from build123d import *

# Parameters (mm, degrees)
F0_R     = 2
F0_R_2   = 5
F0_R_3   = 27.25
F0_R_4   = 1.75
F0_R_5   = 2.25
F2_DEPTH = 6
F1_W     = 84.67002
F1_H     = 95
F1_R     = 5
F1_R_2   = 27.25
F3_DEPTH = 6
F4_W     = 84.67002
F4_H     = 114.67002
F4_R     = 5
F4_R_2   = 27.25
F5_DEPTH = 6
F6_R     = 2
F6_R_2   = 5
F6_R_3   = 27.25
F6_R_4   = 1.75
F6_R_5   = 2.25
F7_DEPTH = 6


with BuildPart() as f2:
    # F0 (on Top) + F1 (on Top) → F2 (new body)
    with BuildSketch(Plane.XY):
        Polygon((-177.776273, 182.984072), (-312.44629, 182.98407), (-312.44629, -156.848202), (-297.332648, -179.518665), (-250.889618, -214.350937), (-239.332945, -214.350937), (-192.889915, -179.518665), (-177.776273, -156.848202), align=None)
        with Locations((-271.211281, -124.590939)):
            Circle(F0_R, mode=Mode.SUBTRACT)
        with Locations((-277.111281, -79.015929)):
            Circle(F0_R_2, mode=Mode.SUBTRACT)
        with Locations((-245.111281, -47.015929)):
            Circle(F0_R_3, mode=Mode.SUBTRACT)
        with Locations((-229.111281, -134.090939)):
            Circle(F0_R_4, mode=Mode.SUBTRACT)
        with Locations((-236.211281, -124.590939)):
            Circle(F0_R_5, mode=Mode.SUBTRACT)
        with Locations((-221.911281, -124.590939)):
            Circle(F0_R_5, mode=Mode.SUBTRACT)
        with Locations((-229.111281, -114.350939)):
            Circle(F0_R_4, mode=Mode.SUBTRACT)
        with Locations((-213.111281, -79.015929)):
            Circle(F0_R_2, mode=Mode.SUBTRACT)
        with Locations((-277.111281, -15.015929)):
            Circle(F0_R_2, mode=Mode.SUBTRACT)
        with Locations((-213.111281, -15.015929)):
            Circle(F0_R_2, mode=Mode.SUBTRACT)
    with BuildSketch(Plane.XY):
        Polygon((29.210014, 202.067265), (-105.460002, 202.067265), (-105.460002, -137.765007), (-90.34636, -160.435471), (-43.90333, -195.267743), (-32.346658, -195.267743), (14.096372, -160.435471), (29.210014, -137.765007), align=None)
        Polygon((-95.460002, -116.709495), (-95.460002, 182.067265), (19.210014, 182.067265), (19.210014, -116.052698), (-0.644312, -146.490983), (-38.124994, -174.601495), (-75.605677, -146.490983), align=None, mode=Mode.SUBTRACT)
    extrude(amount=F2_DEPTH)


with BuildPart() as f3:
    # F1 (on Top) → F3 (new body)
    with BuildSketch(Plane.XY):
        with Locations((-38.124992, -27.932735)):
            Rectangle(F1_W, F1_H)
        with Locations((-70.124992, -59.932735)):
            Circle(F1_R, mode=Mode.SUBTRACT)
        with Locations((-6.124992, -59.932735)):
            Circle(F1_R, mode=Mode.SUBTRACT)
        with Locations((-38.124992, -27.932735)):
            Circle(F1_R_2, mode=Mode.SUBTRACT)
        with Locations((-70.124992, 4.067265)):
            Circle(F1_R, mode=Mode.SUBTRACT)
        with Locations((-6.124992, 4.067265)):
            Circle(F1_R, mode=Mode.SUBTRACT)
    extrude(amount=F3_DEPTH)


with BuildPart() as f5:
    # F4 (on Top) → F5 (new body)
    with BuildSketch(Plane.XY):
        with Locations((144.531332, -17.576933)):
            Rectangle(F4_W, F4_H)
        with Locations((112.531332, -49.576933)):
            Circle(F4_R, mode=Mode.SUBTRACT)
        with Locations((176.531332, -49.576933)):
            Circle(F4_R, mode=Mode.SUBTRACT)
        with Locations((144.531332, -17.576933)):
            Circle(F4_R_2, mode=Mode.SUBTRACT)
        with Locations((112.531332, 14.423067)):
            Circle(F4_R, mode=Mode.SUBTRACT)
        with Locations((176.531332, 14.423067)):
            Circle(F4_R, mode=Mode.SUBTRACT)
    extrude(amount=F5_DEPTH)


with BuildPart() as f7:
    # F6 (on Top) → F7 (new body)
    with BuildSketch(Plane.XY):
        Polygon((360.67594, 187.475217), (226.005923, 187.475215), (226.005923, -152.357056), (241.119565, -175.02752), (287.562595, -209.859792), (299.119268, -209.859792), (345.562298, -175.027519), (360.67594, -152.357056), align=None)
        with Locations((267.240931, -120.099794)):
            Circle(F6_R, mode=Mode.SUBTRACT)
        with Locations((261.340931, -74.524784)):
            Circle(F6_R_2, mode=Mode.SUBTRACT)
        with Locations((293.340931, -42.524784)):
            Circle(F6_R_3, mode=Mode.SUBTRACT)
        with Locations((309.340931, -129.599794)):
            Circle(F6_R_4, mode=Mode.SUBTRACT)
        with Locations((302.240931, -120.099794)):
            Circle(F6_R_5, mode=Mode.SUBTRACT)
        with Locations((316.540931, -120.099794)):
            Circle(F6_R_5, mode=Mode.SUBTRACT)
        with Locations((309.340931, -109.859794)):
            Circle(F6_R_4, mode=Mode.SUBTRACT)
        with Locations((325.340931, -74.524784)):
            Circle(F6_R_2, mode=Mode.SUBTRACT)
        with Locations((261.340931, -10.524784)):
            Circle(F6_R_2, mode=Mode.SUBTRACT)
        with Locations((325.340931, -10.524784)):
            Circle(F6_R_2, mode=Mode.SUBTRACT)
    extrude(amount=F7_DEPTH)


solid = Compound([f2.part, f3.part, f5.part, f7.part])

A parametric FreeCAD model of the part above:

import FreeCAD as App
import Part
import Sketcher


def add_polygon(sketch, points):
    """Adds a closed chain of lines whose ends are joined by coincident constraints."""
    first, n = sketch.GeometryCount, len(points)
    for a, b in zip(points, points[1:] + points[:1]):
        sketch.addGeometry(Part.LineSegment(App.Vector(*a, 0), App.Vector(*b, 0)), False)
    for i in range(n):
        sketch.addConstraint(Sketcher.Constraint("Coincident", first + i, 2, first + (i + 1) % n, 1))

doc = App.newDocument("Part")
params = doc.addObject("Spreadsheet::Sheet", "Params")
for row, (alias, value) in enumerate([
    ("sketch1_diameter", "4 mm"),
    ("sketch1_diameter2", "10 mm"),
    ("sketch1_diameter3", "4.5 mm"),
    ("sketch1_diameter4", "3.5 mm"),
    ("sketch1_diameter5", "54.5 mm"),
    ("pad1_length", "6 mm"),
    ("sketch2_diameter", "10 mm"),
    ("sketch2_diameter2", "54.5 mm"),
    ("sketch2_height", "95 mm"),
    ("pad2_length", "6 mm"),
    ("sketch3_diameter", "10 mm"),
    ("sketch3_diameter2", "54.5 mm"),
    ("pad3_length", "6 mm"),
    ("sketch4_diameter", "4 mm"),
    ("sketch4_diameter2", "10 mm"),
    ("sketch4_diameter3", "4.5 mm"),
    ("sketch4_diameter4", "3.5 mm"),
    ("sketch4_diameter5", "54.5 mm"),
    ("pad4_length", "6 mm"),
], start=1):
    params.set(f"A{row}", alias)
    params.set(f"B{row}", "=" + value)
    params.setAlias(f"B{row}", alias)

body = doc.addObject("PartDesign::Body", "Body")
body.AllowCompound = True

# Sketch on XY plane
sketch1 = body.newObject("Sketcher::SketchObject", "Sketch")
sketch1.AttachmentSupport = (doc.getObject("XY_Plane"), [""])
sketch1.MapMode = "FlatFace"
add_polygon(sketch1, [(-177.776273, 182.984072), (-312.44629, 182.98407), (-312.44629, -156.848202), (-297.332648, -179.518665), (-250.889618, -214.350937), (-239.332945, -214.350937), (-192.889915, -179.518665), (-177.776273, -156.848202)])  # lines 0-7
sketch1.addGeometry(Part.Circle(App.Vector(-271.211281, -124.590939, 0), App.Vector(0, 0, 1), 2), False)  # 8
sketch1.addGeometry(Part.Circle(App.Vector(-277.111281, -79.015929, 0), App.Vector(0, 0, 1), 5), False)  # 9
sketch1.addGeometry(Part.Circle(App.Vector(-236.211281, -124.590939, 0), App.Vector(0, 0, 1), 2.25), False)  # 10
sketch1.addGeometry(Part.Circle(App.Vector(-229.111281, -134.090939, 0), App.Vector(0, 0, 1), 1.75), False)  # 11
sketch1.addGeometry(Part.Circle(App.Vector(-229.111281, -114.350939, 0), App.Vector(0, 0, 1), 1.75), False)  # 12
sketch1.addGeometry(Part.Circle(App.Vector(-221.911281, -124.590939, 0), App.Vector(0, 0, 1), 2.25), False)  # 13
sketch1.addGeometry(Part.Circle(App.Vector(-213.111281, -79.015929, 0), App.Vector(0, 0, 1), 5), False)  # 14
sketch1.addGeometry(Part.Circle(App.Vector(-277.111281, -15.015929, 0), App.Vector(0, 0, 1), 5), False)  # 15
sketch1.addGeometry(Part.Circle(App.Vector(-245.111281, -47.015929, 0), App.Vector(0, 0, 1), 27.25), False)  # 16
sketch1.addGeometry(Part.Circle(App.Vector(-213.111281, -15.015929, 0), App.Vector(0, 0, 1), 5), False)  # 17
add_polygon(sketch1, [(29.210014, 202.067265), (-105.460002, 202.067265), (-105.460002, -137.765007), (-90.34636, -160.435471), (-43.90333, -195.267743), (-32.346658, -195.267743), (14.096372, -160.435471), (29.210014, -137.765007)])  # lines 18-25
add_polygon(sketch1, [(-75.605677, -146.490983), (-95.460002, -116.709495), (-95.460002, 182.067265), (19.210014, 182.067265), (19.210014, -116.052698), (-0.644312, -146.490983), (-38.124994, -174.601495)])  # lines 26-32
sketch1.addConstraint(Sketcher.Constraint("Horizontal", 0))
sketch1.addConstraint(Sketcher.Constraint("Vertical", 1))
sketch1.addConstraint(Sketcher.Constraint("Horizontal", 4))
sketch1.addConstraint(Sketcher.Constraint("Vertical", 7))
sketch1.addConstraint(Sketcher.Constraint("Horizontal", 18))
sketch1.addConstraint(Sketcher.Constraint("Vertical", 19))
sketch1.addConstraint(Sketcher.Constraint("Horizontal", 22))
sketch1.addConstraint(Sketcher.Constraint("Vertical", 25))
sketch1.addConstraint(Sketcher.Constraint("Vertical", 27))
sketch1.addConstraint(Sketcher.Constraint("Horizontal", 28))
sketch1.addConstraint(Sketcher.Constraint("Vertical", 29))
sketch1.addConstraint(Sketcher.Constraint("Equal", 11, 12))
sketch1.addConstraint(Sketcher.Constraint("Equal", 10, 13))
sketch1.addConstraint(Sketcher.Constraint("Equal", 9, 14))
sketch1.addConstraint(Sketcher.Constraint("Equal", 14, 15))
sketch1.addConstraint(Sketcher.Constraint("Equal", 15, 17))
sketch1.addConstraint(Sketcher.Constraint("Parallel", 2, 20))
sketch1.addConstraint(Sketcher.Constraint("Parallel", 3, 21))
sketch1.addConstraint(Sketcher.Constraint("Parallel", 5, 23))
sketch1.addConstraint(Sketcher.Constraint("Parallel", 6, 24))
sketch1.addConstraint(Sketcher.Constraint("Parallel", 20, 26))
sketch1.addConstraint(Sketcher.Constraint("Parallel", 23, 31))
sketch1.addConstraint(Sketcher.Constraint("Parallel", 21, 32))
sketch1.addConstraint(Sketcher.Constraint("Horizontal", 8, 3, 10, 3))
sketch1.addConstraint(Sketcher.Constraint("Horizontal", 10, 3, 13, 3))
sketch1.addConstraint(Sketcher.Constraint("Horizontal", 9, 3, 14, 3))
sketch1.addConstraint(Sketcher.Constraint("Horizontal", 15, 3, 17, 3))
sketch1.addConstraint(Sketcher.Constraint("Horizontal", 2, 2, 5, 2))
sketch1.addConstraint(Sketcher.Constraint("Horizontal", 1, 2, 6, 2))
sketch1.addConstraint(Sketcher.Constraint("Horizontal", 20, 2, 23, 2))
sketch1.addConstraint(Sketcher.Constraint("Horizontal", 19, 2, 24, 2))
sketch1.addConstraint(Sketcher.Constraint("Horizontal", 30, 2, 32, 2))
sketch1.addConstraint(Sketcher.Constraint("Vertical", 11, 3, 12, 3))
sketch1.addConstraint(Sketcher.Constraint("Vertical", 9, 3, 15, 3))
sketch1.addConstraint(Sketcher.Constraint("Vertical", 14, 3, 17, 3))
sketch1.addConstraint(Sketcher.Constraint("Equal", 0, 18))
sketch1.addConstraint(Sketcher.Constraint("Equal", 4, 22))
sketch1.addConstraint(Sketcher.Constraint("Equal", 7, 19))
sketch1.addConstraint(Sketcher.Constraint("Equal", 3, 5))
sketch1.addConstraint(Sketcher.Constraint("Equal", 2, 6))
sketch1.addConstraint(Sketcher.Constraint("Equal", 6, 20))
sketch1.addConstraint(Sketcher.Constraint("Diameter", 8, 4.0))
sketch1.addConstraint(Sketcher.Constraint("Diameter", 9, 10.0))
sketch1.addConstraint(Sketcher.Constraint("Diameter", 10, 4.5))
sketch1.addConstraint(Sketcher.Constraint("Diameter", 11, 3.5))
sketch1.addConstraint(Sketcher.Constraint("Diameter", 16, 54.5))
sketch1.addConstraint(Sketcher.Constraint("DistanceX", 8, 3, 10, 3, 35.0))
sketch1.addConstraint(Sketcher.Constraint("DistanceX", 9, 3, 11, 3, 48.0))
sketch1.addConstraint(Sketcher.Constraint("DistanceX", 12, 3, 14, 3, 16.0))
sketch1.addConstraint(Sketcher.Constraint("DistanceY", 9, 3, 15, 3, 64.0))
sketch1.addConstraint(Sketcher.Constraint("DistanceX", 16, 3, 14, 3, 32.0))
sketch1.addConstraint(Sketcher.Constraint("DistanceY", 14, 3, 16, 3, 32.0))
sketch1.addConstraint(Sketcher.Constraint("DistanceY", 15, 3, 0, 2, 197.999999))
sketch1.addConstraint(Sketcher.Constraint("DistanceX", 19, 2, 26, 2, 10.0))
sketch1.addConstraint(Sketcher.Constraint("DistanceY", 27, 2, 18, 2, 20.0))
sketch1.addConstraint(Sketcher.Constraint("DistanceX", 28, 2, 25, 2, 10.0))
sketch1.addConstraint(Sketcher.Constraint("DistanceX", 9, 3, 8, 3, 5.9))
sketch1.addConstraint(Sketcher.Constraint("DistanceY", 11, 3, 10, 3, 9.5))
sketch1.addConstraint(Sketcher.Constraint("DistanceX", 11, 3, 13, 3, 7.2))
sketch1.addConstraint(Sketcher.Constraint("DistanceY", 10, 3, 12, 3, 10.24))
sketch1.addConstraint(Sketcher.Constraint("DistanceX", 22, 1, 22, 2, 11.556672))
sketch1.addConstraint(Sketcher.Constraint("DistanceY", 1, 2, 1, 1, 339.832272))
sketch1.addConstraint(Sketcher.Constraint("DistanceY", 27, 1, 27, 2, 298.77676))
sketch1.addConstraint(Sketcher.Constraint("DistanceY", 1, 2, -1, 1, 156.848202))
sketch1.addConstraint(Sketcher.Constraint("DistanceY", 29, 2, -1, 1, 116.052698))
sketch1.addConstraint(Sketcher.Constraint("Distance", 30, 36.341209))
sketch1.addConstraint(Sketcher.Constraint("DistanceX", 0, 2, 0, 1, 134.670017))
sketch1.addConstraint(Sketcher.Constraint("DistanceY", 29, 2, 29, 1, 298.119963))
sketch1.addConstraint(Sketcher.Constraint("DistanceX", 8, 3, -1, 1, 271.211281))
sketch1.addConstraint(Sketcher.Constraint("DistanceY", 8, 3, -1, 1, 124.590939))
sketch1.addConstraint(Sketcher.Constraint("DistanceX", 0, 2, -1, 1, 312.44629))
sketch1.addConstraint(Sketcher.Constraint("DistanceX", 2, 2, -1, 1, 297.332648))
sketch1.addConstraint(Sketcher.Constraint("DistanceX", 20, 2, -1, 1, 90.34636))
sketch1.addConstraint(Sketcher.Constraint("DistanceY", 20, 2, -1, 1, 160.435471))
sketch1.addConstraint(Sketcher.Constraint("DistanceX", 30, 2, -1, 1, 0.644312))
sketch1.addConstraint(Sketcher.Constraint("DistanceY", 3, 2, 2, 2, 34.832272))
sketch1.setExpression("Constraints[64]", "Params.sketch1_diameter")
sketch1.setExpression("Constraints[65]", "Params.sketch1_diameter2")
sketch1.setExpression("Constraints[66]", "Params.sketch1_diameter3")
sketch1.setExpression("Constraints[67]", "Params.sketch1_diameter4")
sketch1.setExpression("Constraints[68]", "Params.sketch1_diameter5")
pad1 = body.newObject("PartDesign::Pad", "Pad")
pad1.Profile = sketch1
pad1.setExpression("Length", "Params.pad1_length")
body2 = doc.addObject("PartDesign::Body", "Body001")

# Sketch on XY plane
sketch2 = body2.newObject("Sketcher::SketchObject", "Sketch001")
sketch2.AttachmentSupport = (doc.getObject("XY_Plane001"), [""])
sketch2.MapMode = "FlatFace"
add_polygon(sketch2, [(-80.460002, 19.567265), (-80.460002, -75.432735), (4.210018, -75.432735), (4.210018, 19.567265)])  # lines 0-3
sketch2.addGeometry(Part.Circle(App.Vector(-70.124992, -59.932735, 0), App.Vector(0, 0, 1), 5), False)  # 4
sketch2.addGeometry(Part.Circle(App.Vector(-6.124992, -59.932735, 0), App.Vector(0, 0, 1), 5), False)  # 5
sketch2.addGeometry(Part.Circle(App.Vector(-70.124992, 4.067265, 0), App.Vector(0, 0, 1), 5), False)  # 6
sketch2.addGeometry(Part.Circle(App.Vector(-38.124992, -27.932735, 0), App.Vector(0, 0, 1), 27.25), False)  # 7
sketch2.addGeometry(Part.Circle(App.Vector(-6.124992, 4.067265, 0), App.Vector(0, 0, 1), 5), False)  # 8
sketch2.addConstraint(Sketcher.Constraint("Vertical", 0))
sketch2.addConstraint(Sketcher.Constraint("Horizontal", 1))
sketch2.addConstraint(Sketcher.Constraint("Vertical", 2))
sketch2.addConstraint(Sketcher.Constraint("Horizontal", 3))
sketch2.addConstraint(Sketcher.Constraint("Equal", 4, 5))
sketch2.addConstraint(Sketcher.Constraint("Equal", 5, 6))
sketch2.addConstraint(Sketcher.Constraint("Equal", 6, 8))
sketch2.addConstraint(Sketcher.Constraint("Horizontal", 4, 3, 5, 3))
sketch2.addConstraint(Sketcher.Constraint("Horizontal", 6, 3, 8, 3))
sketch2.addConstraint(Sketcher.Constraint("Vertical", 4, 3, 6, 3))
sketch2.addConstraint(Sketcher.Constraint("Vertical", 5, 3, 8, 3))
sketch2.addConstraint(Sketcher.Constraint("Diameter", 4, 10.0))
sketch2.addConstraint(Sketcher.Constraint("Diameter", 7, 54.5))
sketch2.addConstraint(Sketcher.Constraint("DistanceY", 0, 2, 0, 1, 95.0))
sketch2.addConstraint(Sketcher.Constraint("DistanceX", 4, 3, 5, 3, 64.0))
sketch2.addConstraint(Sketcher.Constraint("DistanceY", 4, 3, 6, 3, 64.0))
sketch2.addConstraint(Sketcher.Constraint("DistanceX", 4, 3, 7, 3, 32.0))
sketch2.addConstraint(Sketcher.Constraint("DistanceY", 4, 3, 7, 3, 32.0))
sketch2.addConstraint(Sketcher.Constraint("DistanceY", 0, 2, 4, 3, 15.5))
sketch2.addConstraint(Sketcher.Constraint("DistanceX", 1, 1, 1, 2, 84.67002))
sketch2.addConstraint(Sketcher.Constraint("DistanceX", 5, 3, -1, 1, 6.124992))
sketch2.addConstraint(Sketcher.Constraint("DistanceX", 0, 2, 4, 3, 10.33501))
sketch2.addConstraint(Sketcher.Constraint("DistanceY", 4, 3, -1, 1, 59.932735))
sketch2.setExpression("Constraints[15]", "Params.sketch2_diameter")
sketch2.setExpression("Constraints[16]", "Params.sketch2_diameter2")
sketch2.setExpression("Constraints[17]", "Params.sketch2_height")
pad2 = body2.newObject("PartDesign::Pad", "Pad001")
pad2.Profile = sketch2
pad2.setExpression("Length", "Params.pad2_length")
body3 = doc.addObject("PartDesign::Body", "Body002")

# Sketch on XY plane
sketch3 = body3.newObject("Sketcher::SketchObject", "Sketch002")
sketch3.AttachmentSupport = (doc.getObject("XY_Plane002"), [""])
sketch3.MapMode = "FlatFace"
add_polygon(sketch3, [(102.196322, 39.758077), (102.196322, -74.911943), (186.866342, -74.911943), (186.866342, 39.758077)])  # lines 0-3
sketch3.addGeometry(Part.Circle(App.Vector(112.531332, -49.576933, 0), App.Vector(0, 0, 1), 5), False)  # 4
sketch3.addGeometry(Part.Circle(App.Vector(176.531332, -49.576933, 0), App.Vector(0, 0, 1), 5), False)  # 5
sketch3.addGeometry(Part.Circle(App.Vector(144.531332, -17.576933, 0), App.Vector(0, 0, 1), 27.25), False)  # 6
sketch3.addGeometry(Part.Circle(App.Vector(112.531332, 14.423067, 0), App.Vector(0, 0, 1), 5), False)  # 7
sketch3.addGeometry(Part.Circle(App.Vector(176.531332, 14.423067, 0), App.Vector(0, 0, 1), 5), False)  # 8
sketch3.addConstraint(Sketcher.Constraint("Vertical", 0))
sketch3.addConstraint(Sketcher.Constraint("Horizontal", 1))
sketch3.addConstraint(Sketcher.Constraint("Vertical", 2))
sketch3.addConstraint(Sketcher.Constraint("Horizontal", 3))
sketch3.addConstraint(Sketcher.Constraint("Equal", 4, 5))
sketch3.addConstraint(Sketcher.Constraint("Equal", 5, 7))
sketch3.addConstraint(Sketcher.Constraint("Equal", 7, 8))
sketch3.addConstraint(Sketcher.Constraint("Horizontal", 4, 3, 5, 3))
sketch3.addConstraint(Sketcher.Constraint("Horizontal", 7, 3, 8, 3))
sketch3.addConstraint(Sketcher.Constraint("Vertical", 4, 3, 7, 3))
sketch3.addConstraint(Sketcher.Constraint("Vertical", 5, 3, 8, 3))
sketch3.addConstraint(Sketcher.Constraint("Diameter", 4, 10.0))
sketch3.addConstraint(Sketcher.Constraint("Diameter", 6, 54.5))
sketch3.addConstraint(Sketcher.Constraint("DistanceX", 4, 3, 5, 3, 64.0))
sketch3.addConstraint(Sketcher.Constraint("DistanceX", 4, 3, 6, 3, 32.0))
sketch3.addConstraint(Sketcher.Constraint("DistanceY", 4, 3, 6, 3, 32.0))
sketch3.addConstraint(Sketcher.Constraint("DistanceY", 6, 3, 7, 3, 32.0))
sketch3.addConstraint(Sketcher.Constraint("DistanceX", 1, 1, 1, 2, 84.67002))
sketch3.addConstraint(Sketcher.Constraint("DistanceY", 0, 2, 0, 1, 114.67002))
sketch3.addConstraint(Sketcher.Constraint("DistanceX", -1, 1, 5, 3, 176.531332))
sketch3.addConstraint(Sketcher.Constraint("DistanceX", -1, 1, 0, 2, 102.196322))
sketch3.addConstraint(Sketcher.Constraint("DistanceY", 0, 2, 4, 3, 25.33501))
sketch3.addConstraint(Sketcher.Constraint("DistanceY", 4, 3, -1, 1, 49.576933))
sketch3.setExpression("Constraints[15]", "Params.sketch3_diameter")
sketch3.setExpression("Constraints[16]", "Params.sketch3_diameter2")
pad3 = body3.newObject("PartDesign::Pad", "Pad002")
pad3.Profile = sketch3
pad3.setExpression("Length", "Params.pad3_length")
body4 = doc.addObject("PartDesign::Body", "Body003")

# Sketch on XY plane
sketch4 = body4.newObject("Sketcher::SketchObject", "Sketch003")
sketch4.AttachmentSupport = (doc.getObject("XY_Plane003"), [""])
sketch4.MapMode = "FlatFace"
add_polygon(sketch4, [(360.67594, 187.475217), (226.005923, 187.475215), (226.005923, -152.357056), (241.119565, -175.02752), (287.562595, -209.859792), (299.119268, -209.859792), (345.562298, -175.027519), (360.67594, -152.357056)])  # lines 0-7
sketch4.addGeometry(Part.Circle(App.Vector(267.240931, -120.099794, 0), App.Vector(0, 0, 1), 2), False)  # 8
sketch4.addGeometry(Part.Circle(App.Vector(261.340931, -74.524784, 0), App.Vector(0, 0, 1), 5), False)  # 9
sketch4.addGeometry(Part.Circle(App.Vector(302.240931, -120.099794, 0), App.Vector(0, 0, 1), 2.25), False)  # 10
sketch4.addGeometry(Part.Circle(App.Vector(309.340931, -129.599794, 0), App.Vector(0, 0, 1), 1.75), False)  # 11
sketch4.addGeometry(Part.Circle(App.Vector(309.340931, -109.859794, 0), App.Vector(0, 0, 1), 1.75), False)  # 12
sketch4.addGeometry(Part.Circle(App.Vector(316.540931, -120.099794, 0), App.Vector(0, 0, 1), 2.25), False)  # 13
sketch4.addGeometry(Part.Circle(App.Vector(325.340931, -74.524784, 0), App.Vector(0, 0, 1), 5), False)  # 14
sketch4.addGeometry(Part.Circle(App.Vector(261.340931, -10.524784, 0), App.Vector(0, 0, 1), 5), False)  # 15
sketch4.addGeometry(Part.Circle(App.Vector(293.340931, -42.524784, 0), App.Vector(0, 0, 1), 27.25), False)  # 16
sketch4.addGeometry(Part.Circle(App.Vector(325.340931, -10.524784, 0), App.Vector(0, 0, 1), 5), False)  # 17
sketch4.addConstraint(Sketcher.Constraint("Horizontal", 0))
sketch4.addConstraint(Sketcher.Constraint("Vertical", 1))
sketch4.addConstraint(Sketcher.Constraint("Horizontal", 4))
sketch4.addConstraint(Sketcher.Constraint("Vertical", 7))
sketch4.addConstraint(Sketcher.Constraint("Equal", 11, 12))
sketch4.addConstraint(Sketcher.Constraint("Equal", 10, 13))
sketch4.addConstraint(Sketcher.Constraint("Equal", 9, 14))
sketch4.addConstraint(Sketcher.Constraint("Equal", 14, 15))
sketch4.addConstraint(Sketcher.Constraint("Equal", 15, 17))
sketch4.addConstraint(Sketcher.Constraint("Horizontal", 8, 3, 10, 3))
sketch4.addConstraint(Sketcher.Constraint("Horizontal", 10, 3, 13, 3))
sketch4.addConstraint(Sketcher.Constraint("Horizontal", 9, 3, 14, 3))
sketch4.addConstraint(Sketcher.Constraint("Horizontal", 15, 3, 17, 3))
sketch4.addConstraint(Sketcher.Constraint("Horizontal", 2, 2, 5, 2))
sketch4.addConstraint(Sketcher.Constraint("Horizontal", 1, 2, 6, 2))
sketch4.addConstraint(Sketcher.Constraint("Vertical", 11, 3, 12, 3))
sketch4.addConstraint(Sketcher.Constraint("Vertical", 9, 3, 15, 3))
sketch4.addConstraint(Sketcher.Constraint("Vertical", 14, 3, 17, 3))
sketch4.addConstraint(Sketcher.Constraint("Equal", 3, 5))
sketch4.addConstraint(Sketcher.Constraint("Equal", 2, 6))
sketch4.addConstraint(Sketcher.Constraint("Diameter", 8, 4.0))
sketch4.addConstraint(Sketcher.Constraint("Diameter", 9, 10.0))
sketch4.addConstraint(Sketcher.Constraint("Diameter", 10, 4.5))
sketch4.addConstraint(Sketcher.Constraint("Diameter", 11, 3.5))
sketch4.addConstraint(Sketcher.Constraint("Diameter", 16, 54.5))
sketch4.addConstraint(Sketcher.Constraint("DistanceX", 8, 3, 10, 3, 35.0))
sketch4.addConstraint(Sketcher.Constraint("DistanceX", 9, 3, 11, 3, 48.0))
sketch4.addConstraint(Sketcher.Constraint("DistanceX", 12, 3, 14, 3, 16.0))
sketch4.addConstraint(Sketcher.Constraint("DistanceY", 9, 3, 15, 3, 64.0))
sketch4.addConstraint(Sketcher.Constraint("DistanceX", 15, 3, 16, 3, 32.0))
sketch4.addConstraint(Sketcher.Constraint("DistanceY", 16, 3, 15, 3, 32.0))
sketch4.addConstraint(Sketcher.Constraint("DistanceY", 15, 3, 0, 2, 197.999999))
sketch4.addConstraint(Sketcher.Constraint("DistanceX", 9, 3, 8, 3, 5.9))
sketch4.addConstraint(Sketcher.Constraint("DistanceY", 11, 3, 10, 3, 9.5))
sketch4.addConstraint(Sketcher.Constraint("DistanceX", 11, 3, 13, 3, 7.2))
sketch4.addConstraint(Sketcher.Constraint("DistanceY", 10, 3, 12, 3, 10.24))
sketch4.addConstraint(Sketcher.Constraint("DistanceY", 1, 2, 1, 1, 339.832271))
sketch4.addConstraint(Sketcher.Constraint("DistanceX", -1, 1, 5, 2, 345.562298))
sketch4.addConstraint(Sketcher.Constraint("DistanceX", 0, 2, 0, 1, 134.670017))
sketch4.addConstraint(Sketcher.Constraint("DistanceX", 4, 1, 4, 2, 11.556673))
sketch4.addConstraint(Sketcher.Constraint("DistanceX", -1, 1, 8, 3, 267.240931))
sketch4.addConstraint(Sketcher.Constraint("DistanceY", 2, 2, -1, 1, 175.02752))
sketch4.addConstraint(Sketcher.Constraint("DistanceY", 3, 2, -1, 1, 209.859792))
sketch4.addConstraint(Sketcher.Constraint("DistanceX", -1, 1, 4, 2, 299.119268))
sketch4.addConstraint(Sketcher.Constraint("DistanceY", 8, 3, 9, 3, 45.57501))
sketch4.addConstraint(Sketcher.Constraint("Distance", 2, 27.246506))
sketch4.setExpression("Constraints[28]", "Params.sketch4_diameter")
sketch4.setExpression("Constraints[29]", "Params.sketch4_diameter2")
sketch4.setExpression("Constraints[30]", "Params.sketch4_diameter3")
sketch4.setExpression("Constraints[31]", "Params.sketch4_diameter4")
sketch4.setExpression("Constraints[32]", "Params.sketch4_diameter5")
pad4 = body4.newObject("PartDesign::Pad", "Pad003")
pad4.Profile = sketch4
pad4.setExpression("Length", "Params.pad4_length")

doc.recompute()
